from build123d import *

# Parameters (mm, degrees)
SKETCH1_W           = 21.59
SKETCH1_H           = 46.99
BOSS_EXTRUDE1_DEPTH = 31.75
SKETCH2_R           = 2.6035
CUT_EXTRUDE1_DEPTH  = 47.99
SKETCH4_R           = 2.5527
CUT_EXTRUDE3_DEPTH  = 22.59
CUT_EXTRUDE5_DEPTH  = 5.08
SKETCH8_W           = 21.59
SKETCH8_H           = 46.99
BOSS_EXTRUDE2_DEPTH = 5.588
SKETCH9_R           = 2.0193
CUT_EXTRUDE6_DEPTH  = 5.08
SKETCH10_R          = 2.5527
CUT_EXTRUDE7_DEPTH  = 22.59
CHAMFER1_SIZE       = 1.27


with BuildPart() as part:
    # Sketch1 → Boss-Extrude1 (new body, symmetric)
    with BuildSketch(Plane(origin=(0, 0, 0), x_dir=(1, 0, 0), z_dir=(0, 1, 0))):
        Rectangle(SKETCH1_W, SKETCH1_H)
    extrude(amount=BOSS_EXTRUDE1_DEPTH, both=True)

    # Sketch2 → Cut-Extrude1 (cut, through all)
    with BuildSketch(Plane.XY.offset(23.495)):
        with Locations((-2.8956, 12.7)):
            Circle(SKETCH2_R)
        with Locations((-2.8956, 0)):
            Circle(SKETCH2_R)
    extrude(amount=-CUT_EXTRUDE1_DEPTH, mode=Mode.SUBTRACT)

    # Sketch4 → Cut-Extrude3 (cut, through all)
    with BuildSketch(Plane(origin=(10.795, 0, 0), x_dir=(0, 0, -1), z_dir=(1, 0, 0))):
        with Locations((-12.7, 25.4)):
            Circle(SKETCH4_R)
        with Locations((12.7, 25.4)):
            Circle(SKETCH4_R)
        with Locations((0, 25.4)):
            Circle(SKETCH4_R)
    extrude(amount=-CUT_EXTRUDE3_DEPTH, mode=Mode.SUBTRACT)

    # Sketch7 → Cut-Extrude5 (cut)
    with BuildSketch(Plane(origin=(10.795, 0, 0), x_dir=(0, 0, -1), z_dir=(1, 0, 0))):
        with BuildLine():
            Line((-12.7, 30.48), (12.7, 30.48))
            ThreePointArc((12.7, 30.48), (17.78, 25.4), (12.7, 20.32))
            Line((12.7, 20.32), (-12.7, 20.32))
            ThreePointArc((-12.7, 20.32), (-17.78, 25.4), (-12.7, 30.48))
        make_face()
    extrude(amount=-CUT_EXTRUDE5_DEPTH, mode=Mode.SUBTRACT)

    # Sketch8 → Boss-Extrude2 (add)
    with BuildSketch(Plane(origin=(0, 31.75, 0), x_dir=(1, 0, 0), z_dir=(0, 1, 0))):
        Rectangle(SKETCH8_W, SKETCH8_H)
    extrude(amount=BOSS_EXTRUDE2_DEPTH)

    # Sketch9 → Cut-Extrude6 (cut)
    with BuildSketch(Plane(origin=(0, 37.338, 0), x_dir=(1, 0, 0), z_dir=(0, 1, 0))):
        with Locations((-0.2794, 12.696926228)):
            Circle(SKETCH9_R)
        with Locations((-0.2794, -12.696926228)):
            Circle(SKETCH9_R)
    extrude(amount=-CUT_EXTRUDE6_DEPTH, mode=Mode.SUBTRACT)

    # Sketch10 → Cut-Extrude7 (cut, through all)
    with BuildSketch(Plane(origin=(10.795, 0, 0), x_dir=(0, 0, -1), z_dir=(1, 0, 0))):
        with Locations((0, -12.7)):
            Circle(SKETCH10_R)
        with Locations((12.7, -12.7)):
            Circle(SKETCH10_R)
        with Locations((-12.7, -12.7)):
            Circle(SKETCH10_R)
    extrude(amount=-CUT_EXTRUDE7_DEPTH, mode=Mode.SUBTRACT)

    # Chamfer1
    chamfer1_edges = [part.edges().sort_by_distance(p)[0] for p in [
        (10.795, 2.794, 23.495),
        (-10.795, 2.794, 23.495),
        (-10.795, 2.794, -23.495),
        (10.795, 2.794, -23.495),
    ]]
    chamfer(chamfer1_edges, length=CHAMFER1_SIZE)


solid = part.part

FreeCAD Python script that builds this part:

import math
import FreeCAD as App
import Part
import Sketcher
Q = App.Units.Quantity


def edges_at(feature, points):
    """Names of the edges that pass closest to the given points."""
    edges = feature.Shape.Edges
    near = lambda p: min(range(len(edges)), key=lambda i: edges[i].distToShape(Part.Vertex(*p))[0])
    return sorted({f"Edge{near(p) + 1}" for p in points})


def add_polygon(sketch, points):
    """Adds a closed chain of lines whose ends are joined by coincident constraints."""
    first, n = sketch.GeometryCount, len(points)
    for a, b in zip(points, points[1:] + points[:1]):
        sketch.addGeometry(Part.LineSegment(App.Vector(*a, 0), App.Vector(*b, 0)), False)
    for i in range(n):
        sketch.addConstraint(Sketcher.Constraint("Coincident", first + i, 2, first + (i + 1) % n, 1))

doc = App.newDocument("Part")
body = doc.addObject("PartDesign::Body", "Body")

# Sketch on XZ plane
sketch1 = body.newObject("Sketcher::SketchObject", "Sketch")
sketch1.AttachmentSupport = (doc.getObject("XZ_Plane"), [""])
sketch1.MapMode = "FlatFace"
add_polygon(sketch1, [(-11, -23), (-11, 23), (11, 23), (11, -23)])  # lines 0-3
sketch1.addConstraint(Sketcher.Constraint("Vertical", 0))
sketch1.addConstraint(Sketcher.Constraint("Horizontal", 1))
sketch1.addConstraint(Sketcher.Constraint("Vertical", 2))
sketch1.addConstraint(Sketcher.Constraint("Horizontal", 3))
sketch1.addConstraint(Sketcher.Constraint("Symmetric", 0, 2, 2, 2, -1, 1))
sketch1.addConstraint(Sketcher.Constraint("DistanceX", 1, 1, 1, 2, Q("0.85 in")))
sketch1.addConstraint(Sketcher.Constraint("DistanceY", 0, 1, 0, 2, Q("1.85 in")))
pad1 = body.newObject("PartDesign::Pad", "Pad")
pad1.Profile = sketch1
pad1.Length = Q("2.5 in")
pad1.Midplane = True

# Sketch on XY plane
sketch2 = body.newObject("Sketcher::SketchObject", "Sketch001")
sketch2.AttachmentSupport = (doc.getObject("XY_Plane"), [""])
sketch2.MapMode = "FlatFace"
sketch2.AttachmentOffset = App.Placement(App.Vector(0, 0, 0.925 * 25.4), App.Rotation())
sketch2.addGeometry(Part.Circle(App.Vector(-2.9, 12.7, 0), App.Vector(0, 0, 1), 2.6), False)
sketch2.addGeometry(Part.Circle(App.Vector(-2.9, 0, 0), App.Vector(0, 0, 1), 2.6), False)
sketch2.addConstraint(Sketcher.Constraint("Equal", 0, 1))
sketch2.addConstraint(Sketcher.Constraint("PointOnObject", 1, 3, -1))
sketch2.addConstraint(Sketcher.Constraint("Vertical", 0, 3, 1, 3))
sketch2.addConstraint(Sketcher.Constraint("Diameter", 0, Q("0.205 in")))
sketch2.addConstraint(Sketcher.Constraint("DistanceY", -1, 1, 0, 3, Q("0.5 in")))
sketch2.addConstraint(Sketcher.Constraint("DistanceX", 0, 3, -1, 1, Q("0.114 in")))
pocket1 = body.newObject("PartDesign::Pocket", "Pocket")
pocket1.Profile = sketch2
pocket1.Type = "ThroughAll"

# Sketch on YZ plane
sketch3 = body.newObject("Sketcher::SketchObject", "Sketch002")
sketch3.AttachmentSupport = (doc.getObject("YZ_Plane"), [""])
sketch3.MapMode = "FlatFace"
sketch3.AttachmentOffset = App.Placement(App.Vector(0, 0, 0.425 * 25.4), App.Rotation())
sketch3.addGeometry(Part.Circle(App.Vector(25.4, 12.7, 0), App.Vector(0, 0, 1), 2.6), False)
sketch3.addGeometry(Part.Circle(App.Vector(25.4, -12.7, 0), App.Vector(0, 0, 1), 2.6), False)
sketch3.addGeometry(Part.Circle(App.Vector(25.4, 0, 0), App.Vector(0, 0, 1), 2.6), False)
sketch3.addConstraint(Sketcher.Constraint("Equal", 0, 1))
sketch3.addConstraint(Sketcher.Constraint("Equal", 1, 2))
sketch3.addConstraint(Sketcher.Constraint("Symmetric", 0, 3, 1, 3, -1))
sketch3.addConstraint(Sketcher.Constraint("PointOnObject", 2, 3, -1))
sketch3.addConstraint(Sketcher.Constraint("Vertical", 1, 3, 2, 3))
sketch3.addConstraint(Sketcher.Constraint("Diameter", 0, Q("0.201 in")))
sketch3.addConstraint(Sketcher.Constraint("DistanceX", -1, 1, 0, 3, Q("1 in")))
sketch3.addConstraint(Sketcher.Constraint("DistanceY", 1, 3, 0, 3, Q("1 in")))
pocket2 = body.newObject("PartDesign::Pocket", "Pocket001")
pocket2.Profile = sketch3
pocket2.Type = "ThroughAll"

# Sketch on YZ plane
sketch4 = body.newObject("Sketcher::SketchObject", "Sketch003")
sketch4.AttachmentSupport = (doc.getObject("YZ_Plane"), [""])
sketch4.MapMode = "FlatFace"
sketch4.AttachmentOffset = App.Placement(App.Vector(0, 0, 0.425 * 25.4), App.Rotation())
sketch4.addGeometry(Part.LineSegment(App.Vector(30, -13, 0), App.Vector(30, 13, 0)), False)
sketch4.addGeometry(Part.ArcOfCircle(Part.Circle(App.Vector(25, 13, 0), App.Vector(0, 0, 1), 5), math.radians(0), math.radians(180)), False)
sketch4.addGeometry(Part.LineSegment(App.Vector(20, 13, 0), App.Vector(20, -13, 0)), False)
sketch4.addGeometry(Part.ArcOfCircle(Part.Circle(App.Vector(25, -13, 0), App.Vector(0, 0, 1), 5), math.radians(180), math.radians(360)), False)
sketch4.addConstraint(Sketcher.Constraint("Tangent", 0, 2, 1, 1))
sketch4.addConstraint(Sketcher.Constraint("Tangent", 1, 2, 2, 1))
sketch4.addConstraint(Sketcher.Constraint("Tangent", 2, 2, 3, 1))
sketch4.addConstraint(Sketcher.Constraint("Tangent", 3, 2, 0, 1))
sketch4.addConstraint(Sketcher.Constraint("Vertical", 0))
sketch4.addConstraint(Sketcher.Constraint("Vertical", 2))
sketch4.addConstraint(Sketcher.Constraint("Radius", 1, Q("0.2 in")))
sketch4.addConstraint(Sketcher.Constraint("DistanceY", 0, 1, 0, 2, Q("1 in")))
sketch4.addConstraint(Sketcher.Constraint("DistanceX", -1, 1, 1, 3, Q("1 in")))
sketch4.addConstraint(Sketcher.Constraint("DistanceY", -1, 1, 1, 3, Q("0.5 in")))
pocket3 = body.newObject("PartDesign::Pocket", "Pocket002")
pocket3.Profile = sketch4
pocket3.Length = Q("0.2 in")

# Sketch on XZ plane
sketch5 = body.newObject("Sketcher::SketchObject", "Sketch004")
sketch5.AttachmentSupport = (doc.getObject("XZ_Plane"), [""])
sketch5.MapMode = "FlatFace"
sketch5.AttachmentOffset = App.Placement(App.Vector(0, 0, -1.25 * 25.4), App.Rotation())
add_polygon(sketch5, [(-11, -23), (-11, 23), (11, 23), (11, -23)])  # lines 0-3
sketch5.addConstraint(Sketcher.Constraint("Vertical", 0))
sketch5.addConstraint(Sketcher.Constraint("Horizontal", 1))
sketch5.addConstraint(Sketcher.Constraint("Vertical", 2))
sketch5.addConstraint(Sketcher.Constraint("Horizontal", 3))
sketch5.addConstraint(Sketcher.Constraint("Symmetric", 0, 2, 2, 2, -1, 1))
sketch5.addConstraint(Sketcher.Constraint("DistanceX", 1, 1, 1, 2, Q("0.85 in")))
sketch5.addConstraint(Sketcher.Constraint("DistanceY", 0, 1, 0, 2, Q("1.85 in")))
pad2 = body.newObject("PartDesign::Pad", "Pad001")
pad2.Profile = sketch5
pad2.Length = Q("0.22 in")
pad2.Reversed = True

# Sketch on XZ plane
sketch6 = body.newObject("Sketcher::SketchObject", "Sketch005")
sketch6.AttachmentSupport = (doc.getObject("XZ_Plane"), [""])
sketch6.MapMode = "FlatFace"
sketch6.AttachmentOffset = App.Placement(App.Vector(0, 0, -1.47 * 25.4), App.Rotation())
sketch6.addGeometry(Part.Circle(App.Vector(-0.3, -12.7, 0), App.Vector(0, 0, 1), 2), False)
sketch6.addGeometry(Part.Circle(App.Vector(-0.3, 12.7, 0), App.Vector(0, 0, 1), 2), False)
sketch6.addConstraint(Sketcher.Constraint("Equal", 0, 1))
sketch6.addConstraint(Sketcher.Constraint("Symmetric", 0, 3, 1, 3, -1))
sketch6.addConstraint(Sketcher.Constraint("Diameter", 0, Q("0.159 in")))
sketch6.addConstraint(Sketcher.Constraint("DistanceX", 0, 3, -1, 1, Q("0.011 in")))
sketch6.addConstraint(Sketcher.Constraint("DistanceY", 0, 3, -1, 1, 12.696926))
pocket4 = body.newObject("PartDesign::Pocket", "Pocket003")
pocket4.Profile = sketch6
pocket4.Length = Q("0.2 in")
pocket4.Reversed = True

# Sketch on YZ plane
sketch7 = body.newObject("Sketcher::SketchObject", "Sketch006")
sketch7.AttachmentSupport = (doc.getObject("YZ_Plane"), [""])
sketch7.MapMode = "FlatFace"
sketch7.AttachmentOffset = App.Placement(App.Vector(0, 0, 0.425 * 25.4), App.Rotation())
sketch7.addGeometry(Part.Circle(App.Vector(-12.7, 0, 0), App.Vector(0, 0, 1), 2.6), False)
sketch7.addGeometry(Part.Circle(App.Vector(-12.7, -12.7, 0), App.Vector(0, 0, 1), 2.6), False)
sketch7.addGeometry(Part.Circle(App.Vector(-12.7, 12.7, 0), App.Vector(0, 0, 1), 2.6), False)
sketch7.addConstraint(Sketcher.Constraint("Equal", 0, 1))
sketch7.addConstraint(Sketcher.Constraint("Equal", 1, 2))
sketch7.addConstraint(Sketcher.Constraint("Symmetric", 1, 3, 2, 3, -1))
sketch7.addConstraint(Sketcher.Constraint("PointOnObject", 0, 3, -1))
sketch7.addConstraint(Sketcher.Constraint("Vertical", 0, 3, 1, 3))
sketch7.addConstraint(Sketcher.Constraint("Diameter", 0, Q("0.201 in")))
sketch7.addConstraint(Sketcher.Constraint("DistanceY", 1, 3, 2, 3, Q("1 in")))
sketch7.addConstraint(Sketcher.Constraint("DistanceX", 0, 3, -1, 1, Q("0.5 in")))
pocket5 = body.newObject("PartDesign::Pocket", "Pocket004")
pocket5.Profile = sketch7
pocket5.Type = "ThroughAll"
doc.recompute()

chamfer = body.newObject("PartDesign::Chamfer", "Chamfer")
chamfer.Base = (pocket5, edges_at(pocket5, [
    (10.795, 2.794, 23.495),
    (-10.795, 2.794, 23.495),
    (-10.795, 2.794, -23.495),
    (10.795, 2.794, -23.495),
]))
chamfer.Size = Q("0.05 in")

doc.recompute()
